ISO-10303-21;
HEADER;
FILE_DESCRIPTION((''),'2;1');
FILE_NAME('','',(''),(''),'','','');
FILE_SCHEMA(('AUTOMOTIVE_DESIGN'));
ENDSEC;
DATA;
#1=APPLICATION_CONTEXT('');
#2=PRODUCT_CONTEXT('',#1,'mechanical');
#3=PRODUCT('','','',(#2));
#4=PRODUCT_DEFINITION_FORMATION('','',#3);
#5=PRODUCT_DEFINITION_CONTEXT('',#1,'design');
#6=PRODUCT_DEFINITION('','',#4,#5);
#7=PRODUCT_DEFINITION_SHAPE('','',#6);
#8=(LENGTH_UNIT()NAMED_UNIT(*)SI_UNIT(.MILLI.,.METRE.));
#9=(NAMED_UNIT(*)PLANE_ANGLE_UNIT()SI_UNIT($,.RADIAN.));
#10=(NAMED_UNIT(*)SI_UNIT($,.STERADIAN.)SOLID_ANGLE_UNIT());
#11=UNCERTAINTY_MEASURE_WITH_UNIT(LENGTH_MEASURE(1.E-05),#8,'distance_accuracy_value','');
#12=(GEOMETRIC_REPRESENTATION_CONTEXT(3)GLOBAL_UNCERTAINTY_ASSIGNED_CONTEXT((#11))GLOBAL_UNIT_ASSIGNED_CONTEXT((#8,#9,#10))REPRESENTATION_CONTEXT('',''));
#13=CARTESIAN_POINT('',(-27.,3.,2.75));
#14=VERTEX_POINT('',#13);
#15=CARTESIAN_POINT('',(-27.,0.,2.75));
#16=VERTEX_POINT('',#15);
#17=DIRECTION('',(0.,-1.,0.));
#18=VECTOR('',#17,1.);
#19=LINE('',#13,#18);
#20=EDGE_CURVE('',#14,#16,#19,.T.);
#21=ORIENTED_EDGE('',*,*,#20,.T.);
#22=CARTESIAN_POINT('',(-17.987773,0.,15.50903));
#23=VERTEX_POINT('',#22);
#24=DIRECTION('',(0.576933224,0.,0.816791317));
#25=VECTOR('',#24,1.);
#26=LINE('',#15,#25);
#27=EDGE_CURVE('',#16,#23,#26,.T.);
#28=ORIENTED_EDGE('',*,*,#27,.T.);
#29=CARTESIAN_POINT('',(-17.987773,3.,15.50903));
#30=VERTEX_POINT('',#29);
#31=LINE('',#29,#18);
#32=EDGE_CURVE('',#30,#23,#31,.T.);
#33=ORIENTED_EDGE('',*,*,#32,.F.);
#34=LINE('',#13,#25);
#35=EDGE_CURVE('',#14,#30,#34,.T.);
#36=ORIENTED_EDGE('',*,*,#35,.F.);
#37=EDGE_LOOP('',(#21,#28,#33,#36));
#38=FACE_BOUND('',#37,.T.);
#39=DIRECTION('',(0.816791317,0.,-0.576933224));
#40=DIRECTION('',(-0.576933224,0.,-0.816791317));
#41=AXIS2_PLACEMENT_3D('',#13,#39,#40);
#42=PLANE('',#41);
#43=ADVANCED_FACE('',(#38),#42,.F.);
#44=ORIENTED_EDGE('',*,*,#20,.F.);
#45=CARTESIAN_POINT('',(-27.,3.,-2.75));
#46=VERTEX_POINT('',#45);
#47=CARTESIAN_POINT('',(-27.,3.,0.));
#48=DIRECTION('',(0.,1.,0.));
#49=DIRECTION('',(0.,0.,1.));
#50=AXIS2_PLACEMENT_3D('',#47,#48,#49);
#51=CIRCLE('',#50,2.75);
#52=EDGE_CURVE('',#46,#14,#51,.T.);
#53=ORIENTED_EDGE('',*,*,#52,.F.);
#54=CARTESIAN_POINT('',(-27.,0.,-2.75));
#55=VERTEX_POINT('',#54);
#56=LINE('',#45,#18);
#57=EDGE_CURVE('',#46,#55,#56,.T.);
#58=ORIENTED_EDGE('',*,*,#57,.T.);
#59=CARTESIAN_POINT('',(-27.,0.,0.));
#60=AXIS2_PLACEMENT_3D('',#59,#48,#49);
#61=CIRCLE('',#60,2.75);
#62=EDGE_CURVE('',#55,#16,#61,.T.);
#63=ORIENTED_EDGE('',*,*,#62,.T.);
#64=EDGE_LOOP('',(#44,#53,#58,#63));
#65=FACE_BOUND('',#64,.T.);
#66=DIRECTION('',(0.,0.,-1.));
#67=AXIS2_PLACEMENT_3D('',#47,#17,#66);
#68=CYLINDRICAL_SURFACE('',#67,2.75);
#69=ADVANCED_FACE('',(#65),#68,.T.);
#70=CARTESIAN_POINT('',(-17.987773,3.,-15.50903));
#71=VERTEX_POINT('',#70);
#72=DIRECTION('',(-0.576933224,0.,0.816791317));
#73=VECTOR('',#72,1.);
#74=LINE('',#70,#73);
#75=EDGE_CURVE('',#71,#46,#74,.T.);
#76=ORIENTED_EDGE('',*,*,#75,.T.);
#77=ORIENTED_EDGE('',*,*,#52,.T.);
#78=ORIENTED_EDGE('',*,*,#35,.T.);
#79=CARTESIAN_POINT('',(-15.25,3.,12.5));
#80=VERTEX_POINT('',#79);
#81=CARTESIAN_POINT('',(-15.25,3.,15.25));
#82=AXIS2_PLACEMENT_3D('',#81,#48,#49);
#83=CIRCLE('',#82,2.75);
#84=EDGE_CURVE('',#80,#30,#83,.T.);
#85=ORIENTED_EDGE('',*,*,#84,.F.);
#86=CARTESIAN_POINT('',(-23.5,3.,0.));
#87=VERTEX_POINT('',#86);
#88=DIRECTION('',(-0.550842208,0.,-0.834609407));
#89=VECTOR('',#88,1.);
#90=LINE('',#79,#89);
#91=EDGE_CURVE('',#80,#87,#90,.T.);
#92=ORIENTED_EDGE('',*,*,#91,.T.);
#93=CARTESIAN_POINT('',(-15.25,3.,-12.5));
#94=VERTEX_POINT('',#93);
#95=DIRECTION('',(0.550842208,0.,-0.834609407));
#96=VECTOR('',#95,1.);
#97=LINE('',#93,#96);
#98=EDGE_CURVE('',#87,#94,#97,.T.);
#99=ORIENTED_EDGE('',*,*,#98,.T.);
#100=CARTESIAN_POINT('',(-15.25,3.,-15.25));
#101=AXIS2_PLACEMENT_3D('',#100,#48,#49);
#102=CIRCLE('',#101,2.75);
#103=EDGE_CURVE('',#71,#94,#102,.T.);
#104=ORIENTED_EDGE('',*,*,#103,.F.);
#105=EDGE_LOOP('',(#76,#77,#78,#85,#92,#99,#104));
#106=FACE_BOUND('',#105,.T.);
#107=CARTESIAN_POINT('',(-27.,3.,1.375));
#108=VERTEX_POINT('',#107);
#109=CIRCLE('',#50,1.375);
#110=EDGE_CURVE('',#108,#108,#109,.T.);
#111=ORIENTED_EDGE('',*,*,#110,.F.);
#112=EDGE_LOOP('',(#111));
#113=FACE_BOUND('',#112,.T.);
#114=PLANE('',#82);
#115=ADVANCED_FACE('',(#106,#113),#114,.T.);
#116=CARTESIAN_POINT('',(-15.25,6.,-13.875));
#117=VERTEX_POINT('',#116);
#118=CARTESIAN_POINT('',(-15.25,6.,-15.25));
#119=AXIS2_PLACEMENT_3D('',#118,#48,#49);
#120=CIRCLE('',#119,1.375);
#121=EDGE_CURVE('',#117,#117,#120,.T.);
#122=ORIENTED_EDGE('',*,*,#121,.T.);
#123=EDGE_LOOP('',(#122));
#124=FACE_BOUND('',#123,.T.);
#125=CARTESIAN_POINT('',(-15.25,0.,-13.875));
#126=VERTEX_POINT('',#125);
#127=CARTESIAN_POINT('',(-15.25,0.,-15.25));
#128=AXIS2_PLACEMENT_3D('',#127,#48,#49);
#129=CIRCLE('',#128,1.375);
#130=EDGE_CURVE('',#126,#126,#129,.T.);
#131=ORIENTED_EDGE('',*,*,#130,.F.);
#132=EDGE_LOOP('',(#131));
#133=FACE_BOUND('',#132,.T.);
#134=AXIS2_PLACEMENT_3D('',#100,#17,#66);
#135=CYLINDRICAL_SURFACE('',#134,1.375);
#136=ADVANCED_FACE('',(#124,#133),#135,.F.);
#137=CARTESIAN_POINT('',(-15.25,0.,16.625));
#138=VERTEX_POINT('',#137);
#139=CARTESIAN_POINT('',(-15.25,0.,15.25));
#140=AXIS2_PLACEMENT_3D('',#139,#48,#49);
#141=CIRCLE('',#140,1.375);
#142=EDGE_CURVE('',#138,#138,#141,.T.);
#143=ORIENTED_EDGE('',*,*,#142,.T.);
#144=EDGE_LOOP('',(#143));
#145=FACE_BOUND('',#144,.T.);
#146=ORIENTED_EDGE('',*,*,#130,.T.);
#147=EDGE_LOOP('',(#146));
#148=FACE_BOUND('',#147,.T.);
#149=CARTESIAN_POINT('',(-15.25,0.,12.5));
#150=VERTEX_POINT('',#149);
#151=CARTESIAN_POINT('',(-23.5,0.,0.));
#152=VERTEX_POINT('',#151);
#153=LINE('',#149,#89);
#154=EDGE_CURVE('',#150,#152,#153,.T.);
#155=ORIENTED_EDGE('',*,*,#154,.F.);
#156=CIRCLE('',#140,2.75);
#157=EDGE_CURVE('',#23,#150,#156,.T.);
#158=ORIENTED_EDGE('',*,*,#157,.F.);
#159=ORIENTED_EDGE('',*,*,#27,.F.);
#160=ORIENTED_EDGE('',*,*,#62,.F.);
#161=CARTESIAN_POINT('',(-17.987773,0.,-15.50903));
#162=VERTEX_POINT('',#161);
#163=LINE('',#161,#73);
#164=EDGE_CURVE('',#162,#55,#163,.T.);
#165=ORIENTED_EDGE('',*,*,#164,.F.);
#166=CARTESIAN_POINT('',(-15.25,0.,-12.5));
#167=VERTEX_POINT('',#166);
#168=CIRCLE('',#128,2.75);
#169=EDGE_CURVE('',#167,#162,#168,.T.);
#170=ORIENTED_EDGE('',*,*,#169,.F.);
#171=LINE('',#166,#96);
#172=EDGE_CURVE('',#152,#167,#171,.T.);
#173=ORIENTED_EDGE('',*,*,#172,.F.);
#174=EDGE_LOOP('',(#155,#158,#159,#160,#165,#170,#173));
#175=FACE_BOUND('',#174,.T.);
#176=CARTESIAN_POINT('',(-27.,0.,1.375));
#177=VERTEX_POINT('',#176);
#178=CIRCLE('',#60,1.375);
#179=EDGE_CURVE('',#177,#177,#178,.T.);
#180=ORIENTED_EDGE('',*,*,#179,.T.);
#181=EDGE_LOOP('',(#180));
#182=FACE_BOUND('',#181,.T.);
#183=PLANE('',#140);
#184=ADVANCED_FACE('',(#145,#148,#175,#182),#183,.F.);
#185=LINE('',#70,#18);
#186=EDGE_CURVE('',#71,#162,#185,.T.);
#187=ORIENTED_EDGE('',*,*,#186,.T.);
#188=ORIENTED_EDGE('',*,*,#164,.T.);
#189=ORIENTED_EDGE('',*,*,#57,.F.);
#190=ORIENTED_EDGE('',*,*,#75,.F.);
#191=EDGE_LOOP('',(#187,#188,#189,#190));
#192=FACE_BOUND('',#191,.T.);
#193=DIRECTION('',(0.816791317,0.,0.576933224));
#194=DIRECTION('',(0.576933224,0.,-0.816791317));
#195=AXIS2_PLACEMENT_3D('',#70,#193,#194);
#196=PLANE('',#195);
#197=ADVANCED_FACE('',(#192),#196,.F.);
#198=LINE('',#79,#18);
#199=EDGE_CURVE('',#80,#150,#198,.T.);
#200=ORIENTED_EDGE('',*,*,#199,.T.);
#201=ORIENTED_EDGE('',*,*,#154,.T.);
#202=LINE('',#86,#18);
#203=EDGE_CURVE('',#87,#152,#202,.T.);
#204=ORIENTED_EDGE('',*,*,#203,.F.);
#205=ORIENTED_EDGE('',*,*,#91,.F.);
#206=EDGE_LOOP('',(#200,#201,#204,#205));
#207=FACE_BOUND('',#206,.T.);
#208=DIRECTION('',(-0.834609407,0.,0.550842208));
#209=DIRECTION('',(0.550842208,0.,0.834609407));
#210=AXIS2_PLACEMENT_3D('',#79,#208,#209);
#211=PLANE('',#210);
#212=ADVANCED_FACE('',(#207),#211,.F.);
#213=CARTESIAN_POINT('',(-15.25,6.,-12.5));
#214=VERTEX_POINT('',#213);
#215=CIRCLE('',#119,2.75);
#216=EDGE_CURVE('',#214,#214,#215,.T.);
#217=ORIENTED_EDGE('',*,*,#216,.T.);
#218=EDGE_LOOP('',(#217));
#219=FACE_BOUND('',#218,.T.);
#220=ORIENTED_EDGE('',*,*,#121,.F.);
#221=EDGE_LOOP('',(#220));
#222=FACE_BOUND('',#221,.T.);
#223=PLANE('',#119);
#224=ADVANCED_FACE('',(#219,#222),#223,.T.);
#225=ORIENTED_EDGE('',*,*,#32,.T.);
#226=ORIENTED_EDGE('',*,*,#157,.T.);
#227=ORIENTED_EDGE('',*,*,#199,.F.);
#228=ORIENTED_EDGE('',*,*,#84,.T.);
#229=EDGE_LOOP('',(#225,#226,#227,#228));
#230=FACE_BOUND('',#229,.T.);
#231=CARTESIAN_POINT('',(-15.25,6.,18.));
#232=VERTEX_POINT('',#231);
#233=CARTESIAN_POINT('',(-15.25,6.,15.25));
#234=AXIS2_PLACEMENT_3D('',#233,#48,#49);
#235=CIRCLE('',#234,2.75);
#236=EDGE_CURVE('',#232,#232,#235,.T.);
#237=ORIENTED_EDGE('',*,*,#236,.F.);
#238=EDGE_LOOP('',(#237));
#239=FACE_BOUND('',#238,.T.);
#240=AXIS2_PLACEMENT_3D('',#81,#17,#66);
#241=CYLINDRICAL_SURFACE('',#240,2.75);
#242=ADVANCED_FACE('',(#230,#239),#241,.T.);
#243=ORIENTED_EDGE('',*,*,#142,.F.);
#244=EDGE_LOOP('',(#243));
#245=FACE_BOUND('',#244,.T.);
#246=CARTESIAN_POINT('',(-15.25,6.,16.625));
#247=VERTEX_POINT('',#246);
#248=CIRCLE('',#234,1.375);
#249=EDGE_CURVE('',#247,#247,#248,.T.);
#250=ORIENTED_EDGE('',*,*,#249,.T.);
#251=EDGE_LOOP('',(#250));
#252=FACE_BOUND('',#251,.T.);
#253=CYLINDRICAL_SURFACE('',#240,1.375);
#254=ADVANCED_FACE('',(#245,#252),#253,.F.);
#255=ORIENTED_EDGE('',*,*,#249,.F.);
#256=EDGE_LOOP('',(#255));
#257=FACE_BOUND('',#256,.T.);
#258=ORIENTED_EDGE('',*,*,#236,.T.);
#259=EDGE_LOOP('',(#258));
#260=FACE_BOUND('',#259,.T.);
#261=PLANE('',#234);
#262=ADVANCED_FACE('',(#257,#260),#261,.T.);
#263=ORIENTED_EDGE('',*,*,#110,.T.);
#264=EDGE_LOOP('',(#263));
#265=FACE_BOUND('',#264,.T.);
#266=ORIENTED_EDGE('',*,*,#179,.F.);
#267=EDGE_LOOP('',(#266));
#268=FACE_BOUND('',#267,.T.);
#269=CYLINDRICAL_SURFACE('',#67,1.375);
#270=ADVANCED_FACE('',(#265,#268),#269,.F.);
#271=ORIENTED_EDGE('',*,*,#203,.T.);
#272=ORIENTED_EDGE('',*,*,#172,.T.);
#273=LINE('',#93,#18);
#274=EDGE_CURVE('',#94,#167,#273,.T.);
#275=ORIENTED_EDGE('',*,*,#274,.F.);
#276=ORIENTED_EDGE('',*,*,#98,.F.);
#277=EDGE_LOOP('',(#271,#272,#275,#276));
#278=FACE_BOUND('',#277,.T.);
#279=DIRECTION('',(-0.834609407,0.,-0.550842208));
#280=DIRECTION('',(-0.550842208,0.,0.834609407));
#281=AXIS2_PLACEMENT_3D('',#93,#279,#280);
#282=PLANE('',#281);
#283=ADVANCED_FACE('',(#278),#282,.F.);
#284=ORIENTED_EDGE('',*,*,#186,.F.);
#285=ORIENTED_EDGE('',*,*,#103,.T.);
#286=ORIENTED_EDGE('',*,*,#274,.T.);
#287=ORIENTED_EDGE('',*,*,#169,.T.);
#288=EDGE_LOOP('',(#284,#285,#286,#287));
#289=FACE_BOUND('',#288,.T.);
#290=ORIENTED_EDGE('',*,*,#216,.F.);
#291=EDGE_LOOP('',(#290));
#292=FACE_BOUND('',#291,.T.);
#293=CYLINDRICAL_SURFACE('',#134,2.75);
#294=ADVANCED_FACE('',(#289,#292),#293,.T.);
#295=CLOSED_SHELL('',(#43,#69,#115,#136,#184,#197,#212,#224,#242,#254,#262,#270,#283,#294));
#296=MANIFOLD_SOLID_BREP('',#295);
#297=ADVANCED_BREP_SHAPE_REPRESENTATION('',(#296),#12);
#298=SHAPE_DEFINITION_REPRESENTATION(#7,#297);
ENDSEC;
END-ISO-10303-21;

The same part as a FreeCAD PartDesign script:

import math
import FreeCAD as App
import Part
import Sketcher

doc = App.newDocument("Part")
body = doc.addObject("PartDesign::Body", "Body")

# Sketch on XZ plane
sketch1 = doc.addObject("Sketcher::SketchObject", "Sketch")
body.addObject(sketch1)
sketch1.AttachmentSupport = (doc.XZ_Plane, [""])
sketch1.MapMode = "FlatFace"
sketch1.addGeometry(Part.LineSegment(App.Vector(-27, 2.75, 0), App.Vector(-17.987773, 15.50903, 0)), False)
sketch1.addGeometry(Part.ArcOfCircle(Part.Circle(App.Vector(-15.25, 15.25, 0), App.Vector(0, 0, 1), 2.75), math.radians(-90), math.radians(174.595138)), False)
sketch1.addGeometry(Part.LineSegment(App.Vector(-15.25, 12.5, 0), App.Vector(-23.5, 0, 0)), False)
sketch1.addGeometry(Part.LineSegment(App.Vector(-23.5, 0, 0), App.Vector(-15.25, -12.5, 0)), False)
sketch1.addGeometry(Part.ArcOfCircle(Part.Circle(App.Vector(-15.25, -15.25, 0), App.Vector(0, 0, 1), 2.75), math.radians(-174.595138), math.radians(90)), False)
sketch1.addGeometry(Part.LineSegment(App.Vector(-17.987773, -15.50903, 0), App.Vector(-27, -2.75, 0)), False)
sketch1.addGeometry(Part.ArcOfCircle(Part.Circle(App.Vector(-27, 0, 0), App.Vector(0, 0, 1), 2.75), math.radians(90), math.radians(270)), False)
sketch1.addGeometry(Part.Circle(App.Vector(-15.25, 15.25, 0), App.Vector(0, 0, 1), 1.375), False)
sketch1.addGeometry(Part.Circle(App.Vector(-27, 0, 0), App.Vector(0, 0, 1), 1.375), False)
sketch1.addGeometry(Part.Circle(App.Vector(-15.25, -15.25, 0), App.Vector(0, 0, 1), 1.375), False)
sketch1.addConstraint(Sketcher.Constraint("Coincident", 0, 2, 1, 2))
sketch1.addConstraint(Sketcher.Constraint("Coincident", 1, 1, 2, 1))
sketch1.addConstraint(Sketcher.Constraint("Coincident", 2, 2, 3, 1))
sketch1.addConstraint(Sketcher.Constraint("Coincident", 3, 2, 4, 2))
sketch1.addConstraint(Sketcher.Constraint("Coincident", 4, 1, 5, 1))
sketch1.addConstraint(Sketcher.Constraint("Coincident", 5, 2, 6, 2))
sketch1.addConstraint(Sketcher.Constraint("Coincident", 6, 1, 0, 1))
sketch1.addConstraint(Sketcher.Constraint("Coincident", 7, 3, 1, 3))
sketch1.addConstraint(Sketcher.Constraint("Coincident", 8, 3, 6, 3))
sketch1.addConstraint(Sketcher.Constraint("Coincident", 9, 3, 4, 3))
sketch1.addConstraint(Sketcher.Constraint("Equal", 1, 4))
sketch1.addConstraint(Sketcher.Constraint("Equal", 4, 6))
sketch1.addConstraint(Sketcher.Constraint("Equal", 7, 8))
sketch1.addConstraint(Sketcher.Constraint("Equal", 8, 9))
sketch1.addConstraint(Sketcher.Constraint("Symmetric", 1, 3, 4, 3, -1))
sketch1.addConstraint(Sketcher.Constraint("Symmetric", 5, 2, 6, 1, -1))
sketch1.addConstraint(Sketcher.Constraint("PointOnObject", 2, 2, -1))
sketch1.addConstraint(Sketcher.Constraint("Vertical", 9, 3, 1, 1))
sketch1.addConstraint(Sketcher.Constraint("Vertical", 1, 1, 3, 2))
sketch1.addConstraint(Sketcher.Constraint("Vertical", 0, 2, 4, 1))
sketch1.addConstraint(Sketcher.Constraint("Vertical", 8, 3, 5, 2))
sketch1.addConstraint(Sketcher.Constraint("Diameter", 7, 2.75))
sketch1.addConstraint(Sketcher.Constraint("Radius", 1, 2.75))
sketch1.addConstraint(Sketcher.Constraint("DistanceX", 6, 3, -1, 1, 27.0))
sketch1.addConstraint(Sketcher.Constraint("DistanceY", -1, 1, 1, 1, 12.5))
sketch1.addConstraint(Sketcher.Constraint("DistanceX", 2, 2, -1, 1, 23.5))
sketch1.addConstraint(Sketcher.Constraint("DistanceX", 1, 3, -1, 1, 15.25))
sketch1.addConstraint(Sketcher.Constraint("DistanceY", -1, 1, 0, 2, 15.50903))
pad1 = doc.addObject("PartDesign::Pad", "Pad")
body.addObject(pad1)
pad1.Profile = sketch1
pad1.Length = 3
pad1.Reversed = True

# Sketch on XZ plane
sketch2 = doc.addObject("Sketcher::SketchObject", "Sketch001")
body.addObject(sketch2)
sketch2.AttachmentSupport = (doc.XZ_Plane, [""])
sketch2.MapMode = "FlatFace"
sketch2.AttachmentOffset = App.Placement(App.Vector(0, 0, -3), App.Rotation())
sketch2.addGeometry(Part.Circle(App.Vector(-15.25, -15.25, 0), App.Vector(0, 0, 1), 2.75), False)
sketch2.addGeometry(Part.Circle(App.Vector(-15.25, -15.25, 0), App.Vector(0, 0, 1), 1.375), False)
sketch2.addGeometry(Part.Circle(App.Vector(-15.25, 15.25, 0), App.Vector(0, 0, 1), 2.75), False)
sketch2.addGeometry(Part.Circle(App.Vector(-15.25, 15.25, 0), App.Vector(0, 0, 1), 1.375), False)
sketch2.addConstraint(Sketcher.Constraint("Coincident", 1, 3, 0, 3))
sketch2.addConstraint(Sketcher.Constraint("Coincident", 3, 3, 2, 3))
sketch2.addConstraint(Sketcher.Constraint("Equal", 0, 2))
sketch2.addConstraint(Sketcher.Constraint("Equal", 1, 3))
sketch2.addConstraint(Sketcher.Constraint("Symmetric", 0, 3, 2, 3, -1))
sketch2.addConstraint(Sketcher.Constraint("Diameter", 0, 5.5))
sketch2.addConstraint(Sketcher.Constraint("Diameter", 1, 2.75))
sketch2.addConstraint(Sketcher.Constraint("DistanceY", 0, 3, 2, 3, 30.5))
sketch2.addConstraint(Sketcher.Constraint("DistanceX", 0, 3, -1, 1, 15.25))
pad2 = doc.addObject("PartDesign::Pad", "Pad001")
body.addObject(pad2)
pad2.Profile = sketch2
pad2.Length = 3
pad2.Reversed = True

doc.recompute()
